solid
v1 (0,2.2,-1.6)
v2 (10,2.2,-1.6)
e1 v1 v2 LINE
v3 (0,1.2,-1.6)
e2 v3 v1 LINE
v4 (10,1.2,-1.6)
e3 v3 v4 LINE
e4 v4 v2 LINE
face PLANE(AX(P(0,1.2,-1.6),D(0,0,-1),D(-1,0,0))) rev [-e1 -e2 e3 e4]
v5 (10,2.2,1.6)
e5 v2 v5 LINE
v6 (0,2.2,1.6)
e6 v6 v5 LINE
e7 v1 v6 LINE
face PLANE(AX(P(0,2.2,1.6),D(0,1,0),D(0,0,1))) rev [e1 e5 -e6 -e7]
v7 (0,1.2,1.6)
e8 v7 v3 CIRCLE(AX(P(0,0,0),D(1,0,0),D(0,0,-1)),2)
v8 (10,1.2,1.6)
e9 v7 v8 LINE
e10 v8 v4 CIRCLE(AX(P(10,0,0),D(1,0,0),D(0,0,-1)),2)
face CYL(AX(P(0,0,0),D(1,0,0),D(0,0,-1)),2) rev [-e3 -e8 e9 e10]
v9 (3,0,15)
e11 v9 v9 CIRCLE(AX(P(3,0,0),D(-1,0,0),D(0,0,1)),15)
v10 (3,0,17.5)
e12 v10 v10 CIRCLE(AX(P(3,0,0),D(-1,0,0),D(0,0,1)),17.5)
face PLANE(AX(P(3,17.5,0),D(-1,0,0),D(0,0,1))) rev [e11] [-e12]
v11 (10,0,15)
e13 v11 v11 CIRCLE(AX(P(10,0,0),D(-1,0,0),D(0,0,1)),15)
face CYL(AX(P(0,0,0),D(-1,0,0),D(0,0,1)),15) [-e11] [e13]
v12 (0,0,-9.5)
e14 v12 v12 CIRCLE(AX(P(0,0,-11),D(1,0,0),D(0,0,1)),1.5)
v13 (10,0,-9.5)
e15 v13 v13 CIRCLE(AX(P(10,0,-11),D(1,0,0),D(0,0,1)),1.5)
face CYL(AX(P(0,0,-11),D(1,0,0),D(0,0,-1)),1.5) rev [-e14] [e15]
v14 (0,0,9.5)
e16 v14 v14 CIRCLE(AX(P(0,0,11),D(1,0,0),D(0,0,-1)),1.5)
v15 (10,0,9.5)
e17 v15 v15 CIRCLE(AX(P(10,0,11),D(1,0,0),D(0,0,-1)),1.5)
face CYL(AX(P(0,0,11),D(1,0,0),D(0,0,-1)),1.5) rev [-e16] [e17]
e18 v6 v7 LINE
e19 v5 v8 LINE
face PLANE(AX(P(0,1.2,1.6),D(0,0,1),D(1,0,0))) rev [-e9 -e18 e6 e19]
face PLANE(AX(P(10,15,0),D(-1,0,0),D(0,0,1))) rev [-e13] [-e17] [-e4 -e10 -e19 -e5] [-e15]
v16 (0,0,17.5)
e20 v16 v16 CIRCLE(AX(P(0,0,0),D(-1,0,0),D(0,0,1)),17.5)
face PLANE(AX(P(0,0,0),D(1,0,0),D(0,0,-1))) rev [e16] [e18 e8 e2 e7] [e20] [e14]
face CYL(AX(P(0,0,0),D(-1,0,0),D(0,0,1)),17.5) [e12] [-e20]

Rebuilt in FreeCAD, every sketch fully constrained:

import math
import FreeCAD as App
import Part
import Sketcher
Q = App.Units.Quantity

doc = App.newDocument("Part")
body = doc.addObject("PartDesign::Body", "Body")

sketch1 = body.newObject("Sketcher::SketchObject", "Sketch")
sketch1.AttachmentSupport = (doc.getObject("XY_Plane"), [""])
sketch1.MapMode = "FlatFace"
sketch1.addGeometry(Part.LineSegment(App.Vector(0, 17.5, 0), App.Vector(0, 0, 0)), False)
sketch1.addGeometry(Part.LineSegment(App.Vector(0, 0, 0), App.Vector(10, 0, 0)), False)
sketch1.addGeometry(Part.LineSegment(App.Vector(10, 0, 0), App.Vector(10, 15, 0)), False)
sketch1.addGeometry(Part.LineSegment(App.Vector(10, 15, 0), App.Vector(3, 15, 0)), False)
sketch1.addGeometry(Part.LineSegment(App.Vector(3, 15, 0), App.Vector(3, 17.5, 0)), False)
sketch1.addGeometry(Part.LineSegment(App.Vector(3, 17.5, 0), App.Vector(0, 17.5, 0)), False)
sketch1.addConstraint(Sketcher.Constraint("Coincident", 0, 2, 1, 1))
sketch1.addConstraint(Sketcher.Constraint("Coincident", 1, 2, 2, 1))
sketch1.addConstraint(Sketcher.Constraint("Coincident", 2, 2, 3, 1))
sketch1.addConstraint(Sketcher.Constraint("Coincident", 3, 2, 4, 1))
sketch1.addConstraint(Sketcher.Constraint("Coincident", 4, 2, 5, 1))
sketch1.addConstraint(Sketcher.Constraint("Coincident", 5, 2, 0, 1))
sketch1.addConstraint(Sketcher.Constraint("Vertical", 0))
sketch1.addConstraint(Sketcher.Constraint("Horizontal", 1))
sketch1.addConstraint(Sketcher.Constraint("Vertical", 2))
sketch1.addConstraint(Sketcher.Constraint("Horizontal", 3))
sketch1.addConstraint(Sketcher.Constraint("Vertical", 4))
sketch1.addConstraint(Sketcher.Constraint("Horizontal", 5))
sketch1.addConstraint(Sketcher.Constraint("Coincident", 0, 2, -1, 1))
sketch1.addConstraint(Sketcher.Constraint("DistanceX", 1, 1, 1, 2, Q("10 mm")))
sketch1.addConstraint(Sketcher.Constraint("DistanceX", 3, 2, 3, 1, Q("7 mm")))
sketch1.addConstraint(Sketcher.Constraint("DistanceY", 2, 1, 2, 2, Q("15 mm")))
sketch1.addConstraint(Sketcher.Constraint("DistanceY", 0, 2, 0, 1, Q("17.5 mm")))
revolution = body.newObject("PartDesign::Revolution", "Revolution")
revolution.Profile = sketch1
revolution.ReferenceAxis = (sketch1, ["H_Axis"])
revolution.Angle = 360

sketch2 = body.newObject("Sketcher::SketchObject", "Sketch001")
sketch2.AttachmentSupport = (doc.getObject("YZ_Plane"), [""])
sketch2.MapMode = "FlatFace"
sketch2.AttachmentOffset = App.Placement(App.Vector(0, 0, 10), App.Rotation())
sketch2.addGeometry(Part.Circle(App.Vector(0, 11, 0), App.Vector(0, 0, 1), 1.5), False)
sketch2.addGeometry(Part.Circle(App.Vector(0, -11, 0), App.Vector(0, 0, 1), 1.5), False)
sketch2.addGeometry(Part.LineSegment(App.Vector(2.2, 1.6, 0), App.Vector(1.2, 1.6, 0)), False)
sketch2.addGeometry(Part.ArcOfCircle(Part.Circle(App.Vector(0, 0, 0), App.Vector(0, 0, 1), 2), math.radians(53.130102), math.radians(306.869898)), False)
sketch2.addGeometry(Part.LineSegment(App.Vector(1.2, -1.6, 0), App.Vector(2.2, -1.6, 0)), False)
sketch2.addGeometry(Part.LineSegment(App.Vector(2.2, -1.6, 0), App.Vector(2.2, 1.6, 0)), False)
sketch2.addConstraint(Sketcher.Constraint("Coincident", 2, 2, 3, 1))
sketch2.addConstraint(Sketcher.Constraint("Coincident", 3, 2, 4, 1))
sketch2.addConstraint(Sketcher.Constraint("Coincident", 4, 2, 5, 1))
sketch2.addConstraint(Sketcher.Constraint("Coincident", 5, 2, 2, 1))
sketch2.addConstraint(Sketcher.Constraint("Horizontal", 2))
sketch2.addConstraint(Sketcher.Constraint("Horizontal", 4))
sketch2.addConstraint(Sketcher.Constraint("Vertical", 5))
sketch2.addConstraint(Sketcher.Constraint("Coincident", 3, 3, -1, 1))
sketch2.addConstraint(Sketcher.Constraint("Equal", 0, 1))
sketch2.addConstraint(Sketcher.Constraint("Symmetric", 0, 3, 1, 3, -1, 1))
sketch2.addConstraint(Sketcher.Constraint("PointOnObject", 0, 3, -2))
sketch2.addConstraint(Sketcher.Constraint("Vertical", 2, 2, 3, 2))
sketch2.addConstraint(Sketcher.Constraint("Diameter", 0, Q("3 mm")))
sketch2.addConstraint(Sketcher.Constraint("Radius", 3, Q("2 mm")))
sketch2.addConstraint(Sketcher.Constraint("DistanceX", 2, 2, 2, 1, Q("1 mm")))
sketch2.addConstraint(Sketcher.Constraint("DistanceY", 5, 1, 5, 2, Q("3.2 mm")))
sketch2.addConstraint(Sketcher.Constraint("DistanceY", -1, 1, 0, 3, Q("11 mm")))
pocket1 = body.newObject("PartDesign::Pocket", "Pocket")
pocket1.Profile = sketch2
pocket1.Type = "ThroughAll"

doc.recompute()
